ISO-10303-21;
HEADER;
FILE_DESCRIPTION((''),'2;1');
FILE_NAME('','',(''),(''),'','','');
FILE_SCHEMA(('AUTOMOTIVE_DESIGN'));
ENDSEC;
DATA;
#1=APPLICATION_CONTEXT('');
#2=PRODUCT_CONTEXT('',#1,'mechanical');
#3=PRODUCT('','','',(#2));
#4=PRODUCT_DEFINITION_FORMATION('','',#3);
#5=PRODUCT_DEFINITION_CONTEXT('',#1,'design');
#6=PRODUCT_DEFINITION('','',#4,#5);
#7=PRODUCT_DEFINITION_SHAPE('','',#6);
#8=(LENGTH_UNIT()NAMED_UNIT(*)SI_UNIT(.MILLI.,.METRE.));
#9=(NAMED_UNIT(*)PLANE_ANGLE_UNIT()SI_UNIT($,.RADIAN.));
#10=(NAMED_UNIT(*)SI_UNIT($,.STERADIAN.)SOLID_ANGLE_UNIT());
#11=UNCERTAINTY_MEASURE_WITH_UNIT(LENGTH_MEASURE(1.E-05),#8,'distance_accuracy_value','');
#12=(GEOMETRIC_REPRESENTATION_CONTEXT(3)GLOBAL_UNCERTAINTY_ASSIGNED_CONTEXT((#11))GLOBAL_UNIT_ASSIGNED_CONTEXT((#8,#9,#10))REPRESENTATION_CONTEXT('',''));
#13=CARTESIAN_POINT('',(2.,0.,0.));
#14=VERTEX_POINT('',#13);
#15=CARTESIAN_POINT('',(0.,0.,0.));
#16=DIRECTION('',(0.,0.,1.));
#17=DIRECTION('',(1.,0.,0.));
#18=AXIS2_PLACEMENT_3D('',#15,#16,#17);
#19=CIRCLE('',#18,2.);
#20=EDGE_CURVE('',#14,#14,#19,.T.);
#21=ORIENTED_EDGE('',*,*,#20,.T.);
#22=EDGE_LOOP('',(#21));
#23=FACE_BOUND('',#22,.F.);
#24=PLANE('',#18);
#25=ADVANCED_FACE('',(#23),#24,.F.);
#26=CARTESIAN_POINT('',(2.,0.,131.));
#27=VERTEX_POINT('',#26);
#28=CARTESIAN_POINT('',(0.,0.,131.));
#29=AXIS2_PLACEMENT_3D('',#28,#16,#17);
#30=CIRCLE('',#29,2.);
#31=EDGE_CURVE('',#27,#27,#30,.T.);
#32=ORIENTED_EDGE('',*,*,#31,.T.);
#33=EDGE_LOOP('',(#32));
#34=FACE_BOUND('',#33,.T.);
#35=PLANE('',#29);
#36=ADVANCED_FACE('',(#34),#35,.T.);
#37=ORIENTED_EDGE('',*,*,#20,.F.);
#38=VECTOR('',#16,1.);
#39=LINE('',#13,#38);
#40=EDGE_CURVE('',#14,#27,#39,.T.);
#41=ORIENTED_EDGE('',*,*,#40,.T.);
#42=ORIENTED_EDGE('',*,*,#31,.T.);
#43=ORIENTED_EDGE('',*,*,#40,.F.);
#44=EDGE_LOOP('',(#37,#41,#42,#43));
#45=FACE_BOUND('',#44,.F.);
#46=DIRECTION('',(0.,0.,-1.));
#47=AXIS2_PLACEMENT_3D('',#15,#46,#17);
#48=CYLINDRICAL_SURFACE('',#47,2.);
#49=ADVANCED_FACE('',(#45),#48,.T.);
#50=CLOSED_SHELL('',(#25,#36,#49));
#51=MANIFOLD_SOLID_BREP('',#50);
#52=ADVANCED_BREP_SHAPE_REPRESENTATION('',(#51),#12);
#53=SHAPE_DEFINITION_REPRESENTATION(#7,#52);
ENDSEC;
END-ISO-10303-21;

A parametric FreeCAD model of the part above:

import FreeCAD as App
import Part
import Sketcher

doc = App.newDocument("Part")
body = doc.addObject("PartDesign::Body", "Body")

# Sketch on XY plane
sketch1 = doc.addObject("Sketcher::SketchObject", "Sketch")
body.addObject(sketch1)
sketch1.AttachmentSupport = (doc.XY_Plane, [""])
sketch1.MapMode = "FlatFace"
sketch1.addGeometry(Part.Circle(App.Vector(0, 0, 0), App.Vector(0, 0, 1), 2), False)
sketch1.addConstraint([
    Sketcher.Constraint("Coincident", 0, 3, -1, 1),
    Sketcher.Constraint("Diameter", 0, 4.0),
])
pad1 = doc.addObject("PartDesign::Pad", "Pad")
body.addObject(pad1)
pad1.Profile = sketch1
pad1.Length = 131

doc.recompute()
